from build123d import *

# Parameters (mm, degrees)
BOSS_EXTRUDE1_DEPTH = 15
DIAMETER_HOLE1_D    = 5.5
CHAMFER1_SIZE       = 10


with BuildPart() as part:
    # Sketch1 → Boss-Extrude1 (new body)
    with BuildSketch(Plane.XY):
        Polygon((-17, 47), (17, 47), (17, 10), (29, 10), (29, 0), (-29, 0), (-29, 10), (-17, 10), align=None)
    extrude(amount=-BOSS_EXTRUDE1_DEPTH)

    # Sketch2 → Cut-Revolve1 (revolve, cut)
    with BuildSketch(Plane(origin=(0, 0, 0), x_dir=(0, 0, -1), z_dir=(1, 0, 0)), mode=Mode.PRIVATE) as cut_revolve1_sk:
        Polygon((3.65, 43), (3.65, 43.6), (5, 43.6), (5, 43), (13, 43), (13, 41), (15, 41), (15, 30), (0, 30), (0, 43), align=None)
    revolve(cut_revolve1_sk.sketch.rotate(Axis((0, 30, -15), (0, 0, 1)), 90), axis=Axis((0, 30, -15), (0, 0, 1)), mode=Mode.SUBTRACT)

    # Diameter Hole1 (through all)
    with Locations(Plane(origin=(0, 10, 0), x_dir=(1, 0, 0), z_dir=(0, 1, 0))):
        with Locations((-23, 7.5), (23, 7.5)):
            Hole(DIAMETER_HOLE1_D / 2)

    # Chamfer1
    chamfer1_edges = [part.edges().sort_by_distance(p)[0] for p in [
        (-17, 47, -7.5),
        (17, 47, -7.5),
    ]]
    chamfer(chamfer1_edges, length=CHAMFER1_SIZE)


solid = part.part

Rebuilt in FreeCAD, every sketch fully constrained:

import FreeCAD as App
import Part
import Sketcher
Q = App.Units.Quantity


def edges_at(feature, points):
    """Names of the edges that pass closest to the given points."""
    edges = feature.Shape.Edges
    near = lambda p: min(range(len(edges)), key=lambda i: edges[i].distToShape(Part.Vertex(*p))[0])
    return sorted({f"Edge{near(p) + 1}" for p in points})


def add_polygon(sketch, points):
    """Adds a closed chain of lines whose ends are joined by coincident constraints."""
    first, n = sketch.GeometryCount, len(points)
    for a, b in zip(points, points[1:] + points[:1]):
        sketch.addGeometry(Part.LineSegment(App.Vector(*a, 0), App.Vector(*b, 0)), False)
    for i in range(n):
        sketch.addConstraint(Sketcher.Constraint("Coincident", first + i, 2, first + (i + 1) % n, 1))

doc = App.newDocument("Part")
body = doc.addObject("PartDesign::Body", "Body")

# Sketch on XY plane
sketch1 = body.newObject("Sketcher::SketchObject", "Sketch")
sketch1.AttachmentSupport = (doc.getObject("XY_Plane"), [""])
sketch1.MapMode = "FlatFace"
add_polygon(sketch1, [(17, 47), (-17, 47), (-17, 10), (-29, 10), (-29, 0), (29, 0), (29, 10), (17, 10)])  # lines 0-7
sketch1.addConstraint([
    Sketcher.Constraint("Horizontal", 0),
    Sketcher.Constraint("Vertical", 1),
    Sketcher.Constraint("Horizontal", 2),
    Sketcher.Constraint("Vertical", 3),
    Sketcher.Constraint("Horizontal", 4),
    Sketcher.Constraint("Vertical", 5),
    Sketcher.Constraint("Horizontal", 6),
    Sketcher.Constraint("Vertical", 7),
    Sketcher.Constraint("Symmetric", 3, 2, 4, 2, -1, 1),
    Sketcher.Constraint("Symmetric", 1, 2, 6, 2, -2),
    Sketcher.Constraint("DistanceX", 0, 2, 0, 1, Q("34 mm")),
    Sketcher.Constraint("DistanceX", 2, 2, 2, 1, Q("12 mm")),
    Sketcher.Constraint("DistanceY", 1, 2, 1, 1, Q("37 mm")),
    Sketcher.Constraint("DistanceY", 3, 2, 3, 1, Q("10 mm")),
])
pad1 = body.newObject("PartDesign::Pad", "Pad")
pad1.Profile = sketch1
pad1.Length = 15
pad1.Reversed = True

# Sketch on YZ plane
sketch2 = body.newObject("Sketcher::SketchObject", "Sketch001")
sketch2.AttachmentSupport = (doc.getObject("YZ_Plane"), [""])
sketch2.MapMode = "FlatFace"
add_polygon(sketch2, [(43.6, -3.65), (43, -3.65), (43, 0), (30, 0), (30, -15), (41, -15), (41, -13), (43, -13), (43, -5), (43.6, -5)])  # lines 0-9
sketch2.addGeometry(Part.LineSegment(App.Vector(30, -15, 0), App.Vector(30, 0, 0)), True)  # axis
sketch2.addConstraint([
    Sketcher.Constraint("Horizontal", 0),
    Sketcher.Constraint("Vertical", 1),
    Sketcher.Constraint("Horizontal", 2),
    Sketcher.Constraint("Vertical", 3),
    Sketcher.Constraint("Horizontal", 4),
    Sketcher.Constraint("Vertical", 5),
    Sketcher.Constraint("Horizontal", 6),
    Sketcher.Constraint("Vertical", 7),
    Sketcher.Constraint("Horizontal", 8),
    Sketcher.Constraint("Vertical", 9),
    Sketcher.Constraint("Vertical", 10),
    Sketcher.Constraint("Coincident", 10, 1, 3, 2),
    Sketcher.Constraint("PointOnObject", 1, 2, -1),
    Sketcher.Constraint("PointOnObject", 10, 2, -1),
    Sketcher.Constraint("Vertical", 1, 2, 6, 2),
    Sketcher.Constraint("Equal", 6, 5),
    Sketcher.Constraint("DistanceX", 2, 2, 2, 1, Q("13 mm")),
    Sketcher.Constraint("DistanceX", 4, 1, 4, 2, Q("11 mm")),
    Sketcher.Constraint("DistanceY", 3, 2, 3, 1, Q("15 mm")),
    Sketcher.Constraint("DistanceY", 7, 1, 7, 2, Q("8 mm")),
    Sketcher.Constraint("DistanceX", 0, 2, 0, 1, Q("0.6 mm")),
    Sketcher.Constraint("DistanceX", -1, 1, 0, 2, Q("43 mm")),
    Sketcher.Constraint("DistanceY", 1, 1, 1, 2, Q("3.65 mm")),
])
groove = body.newObject("PartDesign::Groove", "Groove")
groove.Profile = sketch2
groove.ReferenceAxis = (sketch2, ["Axis0"])
groove.Angle = 360

# Sketch on XZ plane
sketch3 = body.newObject("Sketcher::SketchObject", "Sketch002")
sketch3.AttachmentSupport = (doc.getObject("XZ_Plane"), [""])
sketch3.MapMode = "FlatFace"
sketch3.AttachmentOffset = App.Placement(App.Vector(0, 0, -10), App.Rotation())
sketch3.addGeometry([
    Part.Circle(App.Vector(-23, -7.5, 0), App.Vector(0, 0, 1), 2.75),
    Part.Circle(App.Vector(23, -7.5, 0), App.Vector(0, 0, 1), 2.75),
], False)
sketch3.addConstraint([
    Sketcher.Constraint("Equal", 0, 1),
    Sketcher.Constraint("Symmetric", 0, 3, 1, 3, -2),
    Sketcher.Constraint("Diameter", 0, Q("5.5 mm")),
    Sketcher.Constraint("DistanceX", 0, 3, -1, 1, Q("23 mm")),
    Sketcher.Constraint("DistanceY", 0, 3, -1, 1, Q("7.5 mm")),
])
doc.recompute()
hole = body.newObject("PartDesign::Hole", "Hole")
hole.Profile = sketch3
hole.ThreadType = "None"
hole.Diameter = 5.5
hole.DepthType = "ThroughAll"
hole.Reversed = True
doc.recompute()

chamfer = body.newObject("PartDesign::Chamfer", "Chamfer")
chamfer.Base = (hole, edges_at(hole, [(-17, 47, -7.5), (17, 47, -7.5)]))
chamfer.Size = 10

doc.recompute()
